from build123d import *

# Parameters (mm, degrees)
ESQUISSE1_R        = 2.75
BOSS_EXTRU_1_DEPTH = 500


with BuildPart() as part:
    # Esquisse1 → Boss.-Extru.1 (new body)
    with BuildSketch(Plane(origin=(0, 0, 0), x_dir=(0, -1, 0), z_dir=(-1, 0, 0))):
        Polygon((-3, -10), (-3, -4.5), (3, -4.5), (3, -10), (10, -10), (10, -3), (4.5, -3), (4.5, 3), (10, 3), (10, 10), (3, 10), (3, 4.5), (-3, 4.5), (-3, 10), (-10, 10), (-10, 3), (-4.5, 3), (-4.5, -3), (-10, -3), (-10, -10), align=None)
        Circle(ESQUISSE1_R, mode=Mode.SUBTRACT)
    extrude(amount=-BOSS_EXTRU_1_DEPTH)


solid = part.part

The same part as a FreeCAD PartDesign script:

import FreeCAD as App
import Part
import Sketcher

V = App.Vector

doc = App.newDocument("Part")
body = doc.addObject("PartDesign::Body", "Body")

sketch1 = body.newObject("Sketcher::SketchObject", "Sketch")
sketch1.AttachmentSupport = (doc.getObject("YZ_Plane"), [""])
sketch1.MapMode = "FlatFace"
sketch1.addGeometry([
    Part.LineSegment(V(3, -10, 0), V(3, -4.5, 0)),
    Part.LineSegment(V(3, -4.5, 0), V(-3, -4.5, 0)),
    Part.LineSegment(V(-3, -4.5, 0), V(-3, -10, 0)),
    Part.LineSegment(V(-3, -10, 0), V(-10, -10, 0)),
    Part.LineSegment(V(-10, -10, 0), V(-10, -3, 0)),
    Part.LineSegment(V(-10, -3, 0), V(-4.5, -3, 0)),
    Part.LineSegment(V(-4.5, -3, 0), V(-4.5, 3, 0)),
    Part.LineSegment(V(-4.5, 3, 0), V(-10, 3, 0)),
    Part.LineSegment(V(-10, 3, 0), V(-10, 10, 0)),
    Part.LineSegment(V(-10, 10, 0), V(-3, 10, 0)),
    Part.LineSegment(V(-3, 10, 0), V(-3, 4.5, 0)),
    Part.LineSegment(V(-3, 4.5, 0), V(3, 4.5, 0)),
    Part.LineSegment(V(3, 4.5, 0), V(3, 10, 0)),
    Part.LineSegment(V(3, 10, 0), V(10, 10, 0)),
    Part.LineSegment(V(10, 10, 0), V(10, 3, 0)),
    Part.LineSegment(V(10, 3, 0), V(4.5, 3, 0)),
    Part.LineSegment(V(4.5, 3, 0), V(4.5, -3, 0)),
    Part.LineSegment(V(4.5, -3, 0), V(10, -3, 0)),
    Part.LineSegment(V(10, -3, 0), V(10, -10, 0)),
    Part.LineSegment(V(10, -10, 0), V(3, -10, 0)),
    Part.Circle(V(0, 0, 0), V(0, 0, 1), 2.8),
], False)
sketch1.addConstraint([
    Sketcher.Constraint("Coincident", 0, 2, 1, 1),
    Sketcher.Constraint("Coincident", 1, 2, 2, 1),
    Sketcher.Constraint("Coincident", 2, 2, 3, 1),
    Sketcher.Constraint("Coincident", 3, 2, 4, 1),
    Sketcher.Constraint("Coincident", 4, 2, 5, 1),
    Sketcher.Constraint("Coincident", 5, 2, 6, 1),
    Sketcher.Constraint("Coincident", 6, 2, 7, 1),
    Sketcher.Constraint("Coincident", 7, 2, 8, 1),
    Sketcher.Constraint("Coincident", 8, 2, 9, 1),
    Sketcher.Constraint("Coincident", 9, 2, 10, 1),
    Sketcher.Constraint("Coincident", 10, 2, 11, 1),
    Sketcher.Constraint("Coincident", 11, 2, 12, 1),
    Sketcher.Constraint("Coincident", 12, 2, 13, 1),
    Sketcher.Constraint("Coincident", 13, 2, 14, 1),
    Sketcher.Constraint("Coincident", 14, 2, 15, 1),
    Sketcher.Constraint("Coincident", 15, 2, 16, 1),
    Sketcher.Constraint("Coincident", 16, 2, 17, 1),
    Sketcher.Constraint("Coincident", 17, 2, 18, 1),
    Sketcher.Constraint("Coincident", 18, 2, 19, 1),
    Sketcher.Constraint("Coincident", 19, 2, 0, 1),
    Sketcher.Constraint("Vertical", 0),
    Sketcher.Constraint("Horizontal", 1),
    Sketcher.Constraint("Vertical", 2),
    Sketcher.Constraint("Horizontal", 3),
    Sketcher.Constraint("Vertical", 4),
    Sketcher.Constraint("Horizontal", 5),
    Sketcher.Constraint("Vertical", 6),
    Sketcher.Constraint("Horizontal", 7),
    Sketcher.Constraint("Vertical", 8),
    Sketcher.Constraint("Horizontal", 9),
    Sketcher.Constraint("Vertical", 10),
    Sketcher.Constraint("Horizontal", 11),
    Sketcher.Constraint("Vertical", 12),
    Sketcher.Constraint("Horizontal", 13),
    Sketcher.Constraint("Vertical", 14),
    Sketcher.Constraint("Horizontal", 15),
    Sketcher.Constraint("Vertical", 16),
    Sketcher.Constraint("Horizontal", 17),
    Sketcher.Constraint("Vertical", 18),
    Sketcher.Constraint("Horizontal", 19),
    Sketcher.Constraint("Coincident", 20, 3, -1, 1),
    Sketcher.Constraint("Symmetric", 0, 2, 10, 2, -1, 1),
    Sketcher.Constraint("Symmetric", 2, 2, 12, 2, -1, 1),
    Sketcher.Constraint("Symmetric", 4, 2, 14, 2, -1, 1),
    Sketcher.Constraint("Symmetric", 6, 2, 16, 2, -1, 1),
    Sketcher.Constraint("Symmetric", 8, 2, 18, 2, -1, 1),
    Sketcher.Constraint("Symmetric", 9, 2, 12, 2, -2),
    Sketcher.Constraint("Symmetric", 7, 2, 14, 2, -2),
    Sketcher.Constraint("Equal", 17, 0),
    Sketcher.Constraint("Equal", 19, 4),
    Sketcher.Constraint("Equal", 11, 6),
    Sketcher.Constraint("Diameter", 20, 5.5),
    Sketcher.Constraint("DistanceX", 1, 2, 1, 1, 6.0),
    Sketcher.Constraint("DistanceX", 3, 2, 3, 1, 7.0),
    Sketcher.Constraint("DistanceX", 5, 1, 5, 2, 5.5),
])
pad1 = body.newObject("PartDesign::Pad", "Pad")
pad1.Profile = sketch1
pad1.Length = 500

doc.recompute()
